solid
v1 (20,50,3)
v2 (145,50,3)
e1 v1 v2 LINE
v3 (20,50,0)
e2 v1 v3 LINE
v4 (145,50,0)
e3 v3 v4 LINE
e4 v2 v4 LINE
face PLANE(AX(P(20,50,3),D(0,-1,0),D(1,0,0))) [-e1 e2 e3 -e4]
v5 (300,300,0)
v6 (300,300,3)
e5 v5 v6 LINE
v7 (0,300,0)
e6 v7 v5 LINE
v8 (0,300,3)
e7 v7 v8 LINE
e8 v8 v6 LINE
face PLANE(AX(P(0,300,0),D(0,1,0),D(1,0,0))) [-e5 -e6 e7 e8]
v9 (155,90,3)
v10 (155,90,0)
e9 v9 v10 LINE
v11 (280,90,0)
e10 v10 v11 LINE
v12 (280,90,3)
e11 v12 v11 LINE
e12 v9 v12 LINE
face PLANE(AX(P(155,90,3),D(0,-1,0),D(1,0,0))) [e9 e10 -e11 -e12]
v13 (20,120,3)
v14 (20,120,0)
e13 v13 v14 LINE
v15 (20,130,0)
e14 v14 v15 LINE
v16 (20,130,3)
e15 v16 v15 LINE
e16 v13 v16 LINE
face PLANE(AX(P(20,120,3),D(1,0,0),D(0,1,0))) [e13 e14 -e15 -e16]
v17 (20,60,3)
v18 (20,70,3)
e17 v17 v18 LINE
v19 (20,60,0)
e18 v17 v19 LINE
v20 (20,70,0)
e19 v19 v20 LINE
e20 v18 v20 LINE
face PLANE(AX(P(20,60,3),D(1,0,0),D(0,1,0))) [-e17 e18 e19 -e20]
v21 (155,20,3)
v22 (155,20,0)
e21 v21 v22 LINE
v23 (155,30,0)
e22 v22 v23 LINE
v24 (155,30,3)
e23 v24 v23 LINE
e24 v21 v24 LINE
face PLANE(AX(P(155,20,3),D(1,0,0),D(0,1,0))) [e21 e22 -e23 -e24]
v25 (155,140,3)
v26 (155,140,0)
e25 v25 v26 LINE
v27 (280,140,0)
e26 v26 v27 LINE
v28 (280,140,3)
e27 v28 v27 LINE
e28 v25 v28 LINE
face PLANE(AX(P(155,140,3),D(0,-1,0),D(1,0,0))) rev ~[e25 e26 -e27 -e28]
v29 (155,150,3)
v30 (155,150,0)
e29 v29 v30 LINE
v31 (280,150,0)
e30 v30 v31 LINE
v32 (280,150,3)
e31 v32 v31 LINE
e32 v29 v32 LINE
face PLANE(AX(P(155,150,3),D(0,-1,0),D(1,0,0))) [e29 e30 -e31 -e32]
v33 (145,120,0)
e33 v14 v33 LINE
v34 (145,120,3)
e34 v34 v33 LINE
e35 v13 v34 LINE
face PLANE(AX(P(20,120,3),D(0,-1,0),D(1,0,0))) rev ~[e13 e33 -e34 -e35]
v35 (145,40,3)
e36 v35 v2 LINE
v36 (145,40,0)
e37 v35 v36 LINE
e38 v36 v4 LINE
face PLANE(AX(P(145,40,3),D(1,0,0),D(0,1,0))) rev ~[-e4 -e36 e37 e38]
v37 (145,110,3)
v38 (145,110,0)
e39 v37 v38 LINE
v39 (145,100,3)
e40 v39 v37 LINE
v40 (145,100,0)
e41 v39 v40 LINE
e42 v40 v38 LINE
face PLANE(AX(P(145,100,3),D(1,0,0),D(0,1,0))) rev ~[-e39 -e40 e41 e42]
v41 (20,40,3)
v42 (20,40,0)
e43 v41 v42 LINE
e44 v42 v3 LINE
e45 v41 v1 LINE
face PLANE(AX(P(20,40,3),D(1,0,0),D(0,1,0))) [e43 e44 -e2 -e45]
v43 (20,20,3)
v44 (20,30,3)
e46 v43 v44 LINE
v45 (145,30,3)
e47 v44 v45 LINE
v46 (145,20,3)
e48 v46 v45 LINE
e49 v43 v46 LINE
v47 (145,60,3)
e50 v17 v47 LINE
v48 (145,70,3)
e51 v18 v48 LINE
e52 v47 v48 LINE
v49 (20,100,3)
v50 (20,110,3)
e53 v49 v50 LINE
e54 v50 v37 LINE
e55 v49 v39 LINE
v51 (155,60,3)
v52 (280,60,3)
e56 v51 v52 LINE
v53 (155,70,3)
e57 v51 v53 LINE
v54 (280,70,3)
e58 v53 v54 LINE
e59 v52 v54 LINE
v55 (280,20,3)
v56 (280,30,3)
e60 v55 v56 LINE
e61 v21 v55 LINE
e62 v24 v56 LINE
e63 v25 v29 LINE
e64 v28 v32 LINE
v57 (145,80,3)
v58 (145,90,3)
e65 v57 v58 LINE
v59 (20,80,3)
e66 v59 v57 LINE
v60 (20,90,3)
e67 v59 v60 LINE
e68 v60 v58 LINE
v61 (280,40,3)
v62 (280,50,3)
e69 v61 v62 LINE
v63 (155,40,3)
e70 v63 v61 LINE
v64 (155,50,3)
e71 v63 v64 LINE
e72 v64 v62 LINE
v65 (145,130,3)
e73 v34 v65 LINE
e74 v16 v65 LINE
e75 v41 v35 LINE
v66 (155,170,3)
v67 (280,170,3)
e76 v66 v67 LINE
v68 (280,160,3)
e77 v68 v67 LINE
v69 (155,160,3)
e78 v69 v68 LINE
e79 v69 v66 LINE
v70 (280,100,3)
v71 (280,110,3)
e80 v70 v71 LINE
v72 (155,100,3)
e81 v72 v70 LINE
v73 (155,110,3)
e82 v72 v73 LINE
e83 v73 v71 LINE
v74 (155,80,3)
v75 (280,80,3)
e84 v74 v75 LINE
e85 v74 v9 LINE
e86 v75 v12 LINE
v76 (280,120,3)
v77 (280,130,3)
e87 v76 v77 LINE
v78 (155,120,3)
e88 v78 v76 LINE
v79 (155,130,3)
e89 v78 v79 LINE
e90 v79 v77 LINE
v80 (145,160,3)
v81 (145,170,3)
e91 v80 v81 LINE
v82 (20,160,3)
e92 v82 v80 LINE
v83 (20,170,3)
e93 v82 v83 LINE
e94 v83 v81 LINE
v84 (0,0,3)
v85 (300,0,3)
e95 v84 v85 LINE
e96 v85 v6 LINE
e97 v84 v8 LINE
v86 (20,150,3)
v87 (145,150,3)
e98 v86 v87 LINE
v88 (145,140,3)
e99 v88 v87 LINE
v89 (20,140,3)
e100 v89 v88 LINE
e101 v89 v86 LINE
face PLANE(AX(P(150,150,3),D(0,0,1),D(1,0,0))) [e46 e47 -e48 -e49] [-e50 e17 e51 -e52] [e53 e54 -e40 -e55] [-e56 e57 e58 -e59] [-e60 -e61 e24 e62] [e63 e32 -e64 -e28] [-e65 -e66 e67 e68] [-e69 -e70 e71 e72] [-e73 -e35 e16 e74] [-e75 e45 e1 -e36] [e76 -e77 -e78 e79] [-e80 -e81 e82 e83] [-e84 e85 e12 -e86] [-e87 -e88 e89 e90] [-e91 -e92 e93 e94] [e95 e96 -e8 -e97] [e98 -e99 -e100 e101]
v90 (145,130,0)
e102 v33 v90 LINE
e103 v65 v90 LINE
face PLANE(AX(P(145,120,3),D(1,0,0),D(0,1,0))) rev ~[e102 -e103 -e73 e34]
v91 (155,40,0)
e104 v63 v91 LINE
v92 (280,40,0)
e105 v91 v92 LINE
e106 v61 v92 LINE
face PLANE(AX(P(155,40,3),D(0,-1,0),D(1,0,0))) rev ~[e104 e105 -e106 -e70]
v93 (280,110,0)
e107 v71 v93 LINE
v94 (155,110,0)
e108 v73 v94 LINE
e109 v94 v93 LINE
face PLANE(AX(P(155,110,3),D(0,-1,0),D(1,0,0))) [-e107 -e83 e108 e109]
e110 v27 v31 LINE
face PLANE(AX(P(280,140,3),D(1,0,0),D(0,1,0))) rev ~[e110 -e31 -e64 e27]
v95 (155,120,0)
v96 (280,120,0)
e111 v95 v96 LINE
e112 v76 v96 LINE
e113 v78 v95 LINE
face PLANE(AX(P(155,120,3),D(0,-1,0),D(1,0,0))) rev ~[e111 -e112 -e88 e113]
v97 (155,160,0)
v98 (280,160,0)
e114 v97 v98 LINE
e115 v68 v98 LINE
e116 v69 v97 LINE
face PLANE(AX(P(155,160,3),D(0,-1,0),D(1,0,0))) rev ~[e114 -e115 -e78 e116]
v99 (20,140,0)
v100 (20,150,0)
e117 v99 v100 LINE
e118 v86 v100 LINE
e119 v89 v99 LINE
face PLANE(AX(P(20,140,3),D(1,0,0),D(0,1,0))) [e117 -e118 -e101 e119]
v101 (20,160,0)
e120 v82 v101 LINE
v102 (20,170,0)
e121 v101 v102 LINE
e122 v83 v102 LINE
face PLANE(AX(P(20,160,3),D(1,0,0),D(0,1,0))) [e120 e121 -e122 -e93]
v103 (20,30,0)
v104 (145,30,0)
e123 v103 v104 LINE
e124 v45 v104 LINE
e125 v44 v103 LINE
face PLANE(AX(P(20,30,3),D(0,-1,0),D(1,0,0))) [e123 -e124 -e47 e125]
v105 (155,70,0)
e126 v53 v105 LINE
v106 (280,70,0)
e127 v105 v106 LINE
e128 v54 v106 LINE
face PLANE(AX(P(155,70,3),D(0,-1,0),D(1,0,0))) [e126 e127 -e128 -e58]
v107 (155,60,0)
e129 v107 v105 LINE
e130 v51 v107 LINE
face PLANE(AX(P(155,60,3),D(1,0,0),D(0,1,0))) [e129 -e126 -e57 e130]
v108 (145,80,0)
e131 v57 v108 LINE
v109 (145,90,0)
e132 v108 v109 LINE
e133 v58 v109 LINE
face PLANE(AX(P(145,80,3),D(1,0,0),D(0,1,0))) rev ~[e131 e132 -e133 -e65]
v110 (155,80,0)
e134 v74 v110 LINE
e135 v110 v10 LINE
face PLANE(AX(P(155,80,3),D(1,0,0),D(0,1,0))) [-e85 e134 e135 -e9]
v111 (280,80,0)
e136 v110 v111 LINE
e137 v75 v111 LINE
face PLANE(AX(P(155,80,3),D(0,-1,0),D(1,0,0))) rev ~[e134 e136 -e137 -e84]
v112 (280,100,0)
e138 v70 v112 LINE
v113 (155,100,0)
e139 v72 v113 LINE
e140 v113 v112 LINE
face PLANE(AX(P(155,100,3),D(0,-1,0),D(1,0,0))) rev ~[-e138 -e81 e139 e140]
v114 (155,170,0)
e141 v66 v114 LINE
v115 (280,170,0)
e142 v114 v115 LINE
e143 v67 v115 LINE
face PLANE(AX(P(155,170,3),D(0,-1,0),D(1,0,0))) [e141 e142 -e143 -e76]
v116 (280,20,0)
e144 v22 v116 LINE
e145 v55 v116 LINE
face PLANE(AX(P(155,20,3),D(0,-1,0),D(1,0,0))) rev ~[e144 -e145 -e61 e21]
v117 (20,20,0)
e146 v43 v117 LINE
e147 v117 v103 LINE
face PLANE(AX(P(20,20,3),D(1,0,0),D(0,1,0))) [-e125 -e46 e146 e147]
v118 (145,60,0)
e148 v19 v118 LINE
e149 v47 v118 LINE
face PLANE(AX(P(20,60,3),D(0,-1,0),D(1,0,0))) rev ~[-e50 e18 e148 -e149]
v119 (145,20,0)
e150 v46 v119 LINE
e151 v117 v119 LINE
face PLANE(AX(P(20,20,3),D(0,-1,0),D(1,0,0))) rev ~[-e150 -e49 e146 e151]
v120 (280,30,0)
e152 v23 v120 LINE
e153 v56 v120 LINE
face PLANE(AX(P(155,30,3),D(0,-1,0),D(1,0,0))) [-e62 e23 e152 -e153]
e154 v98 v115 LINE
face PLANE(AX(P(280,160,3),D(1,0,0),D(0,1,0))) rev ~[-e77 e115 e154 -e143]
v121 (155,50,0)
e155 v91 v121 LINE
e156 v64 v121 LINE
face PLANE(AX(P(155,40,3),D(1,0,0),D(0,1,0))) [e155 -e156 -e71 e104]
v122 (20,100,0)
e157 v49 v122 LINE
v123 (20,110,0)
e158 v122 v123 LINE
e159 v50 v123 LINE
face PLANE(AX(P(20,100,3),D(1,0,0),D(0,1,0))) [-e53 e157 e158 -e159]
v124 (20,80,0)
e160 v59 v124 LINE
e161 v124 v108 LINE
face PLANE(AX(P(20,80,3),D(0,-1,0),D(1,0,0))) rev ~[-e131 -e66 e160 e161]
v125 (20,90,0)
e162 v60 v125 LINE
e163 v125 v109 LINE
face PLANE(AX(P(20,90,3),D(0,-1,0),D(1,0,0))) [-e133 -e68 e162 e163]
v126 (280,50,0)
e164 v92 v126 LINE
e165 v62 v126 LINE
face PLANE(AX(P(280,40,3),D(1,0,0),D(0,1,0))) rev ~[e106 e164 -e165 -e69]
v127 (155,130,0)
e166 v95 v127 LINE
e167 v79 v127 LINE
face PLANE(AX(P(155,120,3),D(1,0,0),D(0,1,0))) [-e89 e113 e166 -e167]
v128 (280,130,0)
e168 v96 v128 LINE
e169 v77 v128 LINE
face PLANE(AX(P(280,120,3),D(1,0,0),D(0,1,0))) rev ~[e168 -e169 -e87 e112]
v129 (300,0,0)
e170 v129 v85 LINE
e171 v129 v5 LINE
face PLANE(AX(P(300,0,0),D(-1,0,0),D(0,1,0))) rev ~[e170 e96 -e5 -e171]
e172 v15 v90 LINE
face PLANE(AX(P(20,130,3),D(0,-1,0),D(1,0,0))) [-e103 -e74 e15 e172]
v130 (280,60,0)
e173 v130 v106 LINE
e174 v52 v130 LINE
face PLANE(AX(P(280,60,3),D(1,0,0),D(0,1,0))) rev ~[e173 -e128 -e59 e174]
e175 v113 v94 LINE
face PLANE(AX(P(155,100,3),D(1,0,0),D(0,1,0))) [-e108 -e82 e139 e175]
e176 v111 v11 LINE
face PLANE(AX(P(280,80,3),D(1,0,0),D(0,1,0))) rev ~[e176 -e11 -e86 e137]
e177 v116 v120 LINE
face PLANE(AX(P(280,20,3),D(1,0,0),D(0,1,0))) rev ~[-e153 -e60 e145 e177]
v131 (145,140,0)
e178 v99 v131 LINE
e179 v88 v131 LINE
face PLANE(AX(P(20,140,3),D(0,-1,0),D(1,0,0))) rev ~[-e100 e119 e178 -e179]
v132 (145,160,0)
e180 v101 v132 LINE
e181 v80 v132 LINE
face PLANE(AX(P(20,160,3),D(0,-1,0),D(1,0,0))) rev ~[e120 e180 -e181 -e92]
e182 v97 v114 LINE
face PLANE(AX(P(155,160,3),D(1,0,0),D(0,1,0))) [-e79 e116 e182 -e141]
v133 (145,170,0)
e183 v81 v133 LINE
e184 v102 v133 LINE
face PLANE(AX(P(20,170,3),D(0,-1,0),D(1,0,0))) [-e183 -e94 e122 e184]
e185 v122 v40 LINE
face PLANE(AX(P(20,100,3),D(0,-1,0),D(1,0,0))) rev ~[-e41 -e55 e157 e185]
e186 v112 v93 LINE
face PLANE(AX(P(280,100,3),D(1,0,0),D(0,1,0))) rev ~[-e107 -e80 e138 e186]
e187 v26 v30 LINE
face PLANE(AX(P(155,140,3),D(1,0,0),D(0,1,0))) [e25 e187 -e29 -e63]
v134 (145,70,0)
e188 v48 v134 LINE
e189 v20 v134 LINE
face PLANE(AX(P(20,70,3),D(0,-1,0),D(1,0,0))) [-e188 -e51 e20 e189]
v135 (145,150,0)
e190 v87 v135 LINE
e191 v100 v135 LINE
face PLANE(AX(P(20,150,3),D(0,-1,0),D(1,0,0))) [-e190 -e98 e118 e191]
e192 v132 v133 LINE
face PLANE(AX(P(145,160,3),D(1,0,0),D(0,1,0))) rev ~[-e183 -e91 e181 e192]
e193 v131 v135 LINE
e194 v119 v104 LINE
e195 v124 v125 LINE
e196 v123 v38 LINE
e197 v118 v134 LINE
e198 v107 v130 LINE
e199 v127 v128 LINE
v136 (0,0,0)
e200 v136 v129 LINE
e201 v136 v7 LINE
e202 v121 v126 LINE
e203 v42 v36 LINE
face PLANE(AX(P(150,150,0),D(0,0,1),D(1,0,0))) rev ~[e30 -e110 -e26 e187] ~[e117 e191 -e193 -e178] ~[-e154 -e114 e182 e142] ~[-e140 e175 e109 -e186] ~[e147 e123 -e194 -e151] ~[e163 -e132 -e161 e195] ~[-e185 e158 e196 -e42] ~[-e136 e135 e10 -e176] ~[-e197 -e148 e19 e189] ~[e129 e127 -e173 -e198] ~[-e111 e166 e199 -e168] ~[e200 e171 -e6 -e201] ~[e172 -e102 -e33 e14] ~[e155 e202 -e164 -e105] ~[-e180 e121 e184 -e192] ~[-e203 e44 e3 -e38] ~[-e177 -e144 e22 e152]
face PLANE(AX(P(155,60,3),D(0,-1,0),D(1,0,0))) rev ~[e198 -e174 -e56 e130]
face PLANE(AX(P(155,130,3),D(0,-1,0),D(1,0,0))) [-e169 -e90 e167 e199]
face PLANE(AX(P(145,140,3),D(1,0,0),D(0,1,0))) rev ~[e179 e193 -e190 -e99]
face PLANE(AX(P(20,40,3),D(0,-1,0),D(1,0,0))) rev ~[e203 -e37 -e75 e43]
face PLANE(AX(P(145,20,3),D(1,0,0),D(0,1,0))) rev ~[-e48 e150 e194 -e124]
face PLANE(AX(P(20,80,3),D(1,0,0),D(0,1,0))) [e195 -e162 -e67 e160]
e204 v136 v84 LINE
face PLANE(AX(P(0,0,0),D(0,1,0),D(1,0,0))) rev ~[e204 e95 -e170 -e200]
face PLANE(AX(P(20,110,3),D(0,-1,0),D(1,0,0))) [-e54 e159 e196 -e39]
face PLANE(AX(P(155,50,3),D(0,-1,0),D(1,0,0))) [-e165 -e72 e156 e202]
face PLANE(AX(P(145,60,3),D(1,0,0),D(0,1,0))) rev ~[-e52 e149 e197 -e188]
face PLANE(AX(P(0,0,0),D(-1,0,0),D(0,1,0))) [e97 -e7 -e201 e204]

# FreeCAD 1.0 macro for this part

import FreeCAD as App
import Part
import Sketcher
from FreeCAD import Vector
Q = App.Units.Quantity


def add_polygon(sketch, points):
    """Adds a closed chain of lines whose ends are joined by coincident constraints."""
    first, n = sketch.GeometryCount, len(points)
    for a, b in zip(points, points[1:] + points[:1]):
        sketch.addGeometry(Part.LineSegment(App.Vector(*a, 0), App.Vector(*b, 0)), False)
    for i in range(n):
        sketch.addConstraint(Sketcher.Constraint("Coincident", first + i, 2, first + (i + 1) % n, 1))

doc = App.newDocument("Part")
params = doc.addObject("Spreadsheet::Sheet", "Params")
for row, (alias, value) in enumerate([
    ("sketch1_width", "300 mm"),
    ("pad1_length", "3 mm"),
    ("sketch2_width", "125 mm"),
    ("sketch2_height", "10 mm"),
    ("pocket1_length", "10 mm"),
], start=1):
    params.set(f"A{row}", alias)
    params.set(f"B{row}", "=" + value)
    params.setAlias(f"B{row}", alias)

body = doc.addObject("PartDesign::Body", "Body")

# Sketch on XY plane
sketch1 = doc.addObject("Sketcher::SketchObject", "Sketch")
body.addObject(sketch1)
sketch1.AttachmentSupport = (doc.XY_Plane, [""])
sketch1.MapMode = "FlatFace"
add_polygon(sketch1, [(0, 300), (0, 0), (300, 0), (300, 300)])  # lines 0-3
sketch1.addConstraint([
    Sketcher.Constraint("Vertical", 0),
    Sketcher.Constraint("Horizontal", 1),
    Sketcher.Constraint("Vertical", 2),
    Sketcher.Constraint("Horizontal", 3),
    Sketcher.Constraint("Coincident", 0, 2, -1, 1),
    Sketcher.Constraint("Equal", 3, 0),
    Sketcher.Constraint("DistanceX", 1, 1, 1, 2, Q("300 mm")),
])
sketch1.setExpression("Constraints[10]", "Params.sketch1_width")
pad1 = doc.addObject("PartDesign::Pad", "Pad")
body.addObject(pad1)
pad1.Profile = sketch1
pad1.setExpression("Length", "Params.pad1_length")

# Sketch on XY plane
sketch2 = doc.addObject("Sketcher::SketchObject", "Sketch001")
body.addObject(sketch2)
sketch2.AttachmentSupport = (doc.XY_Plane, [""])
sketch2.MapMode = "FlatFace"
sketch2.AttachmentOffset = App.Placement(Vector(0, 0, 3), App.Rotation())
add_polygon(sketch2, [(20, 30), (20, 20), (145, 20), (145, 30)])  # lines 0-3
add_polygon(sketch2, [(20, 170), (20, 160), (145, 160), (145, 170)])  # lines 4-7
add_polygon(sketch2, [(20, 150), (20, 140), (145, 140), (145, 150)])  # lines 8-11
add_polygon(sketch2, [(20, 130), (20, 120), (145, 120), (145, 130)])  # lines 12-15
add_polygon(sketch2, [(20, 110), (20, 100), (145, 100), (145, 110)])  # lines 16-19
add_polygon(sketch2, [(20, 90), (20, 80), (145, 80), (145, 90)])  # lines 20-23
add_polygon(sketch2, [(20, 70), (20, 60), (145, 60), (145, 70)])  # lines 24-27
add_polygon(sketch2, [(20, 50), (20, 40), (145, 40), (145, 50)])  # lines 28-31
add_polygon(sketch2, [(155, 30), (155, 20), (280, 20), (280, 30)])  # lines 32-35
add_polygon(sketch2, [(155, 50), (155, 40), (280, 40), (280, 50)])  # lines 36-39
add_polygon(sketch2, [(155, 70), (155, 60), (280, 60), (280, 70)])  # lines 40-43
add_polygon(sketch2, [(155, 90), (155, 80), (280, 80), (280, 90)])  # lines 44-47
add_polygon(sketch2, [(155, 110), (155, 100), (280, 100), (280, 110)])  # lines 48-51
add_polygon(sketch2, [(155, 130), (155, 120), (280, 120), (280, 130)])  # lines 52-55
add_polygon(sketch2, [(155, 150), (155, 140), (280, 140), (280, 150)])  # lines 56-59
add_polygon(sketch2, [(155, 170), (155, 160), (280, 160), (280, 170)])  # lines 60-63
sketch2.addConstraint([
    Sketcher.Constraint("Vertical", 0),
    Sketcher.Constraint("Horizontal", 1),
    Sketcher.Constraint("Vertical", 2),
    Sketcher.Constraint("Horizontal", 3),
    Sketcher.Constraint("Vertical", 4),
    Sketcher.Constraint("Horizontal", 5),
    Sketcher.Constraint("Vertical", 6),
    Sketcher.Constraint("Horizontal", 7),
    Sketcher.Constraint("Vertical", 8),
    Sketcher.Constraint("Horizontal", 9),
    Sketcher.Constraint("Vertical", 10),
    Sketcher.Constraint("Horizontal", 11),
    Sketcher.Constraint("Vertical", 12),
    Sketcher.Constraint("Horizontal", 13),
    Sketcher.Constraint("Vertical", 14),
    Sketcher.Constraint("Horizontal", 15),
    Sketcher.Constraint("Vertical", 16),
    Sketcher.Constraint("Horizontal", 17),
    Sketcher.Constraint("Vertical", 18),
    Sketcher.Constraint("Horizontal", 19),
    Sketcher.Constraint("Vertical", 20),
    Sketcher.Constraint("Horizontal", 21),
    Sketcher.Constraint("Vertical", 22),
    Sketcher.Constraint("Horizontal", 23),
    Sketcher.Constraint("Vertical", 24),
    Sketcher.Constraint("Horizontal", 25),
    Sketcher.Constraint("Vertical", 26),
    Sketcher.Constraint("Horizontal", 27),
    Sketcher.Constraint("Vertical", 28),
    Sketcher.Constraint("Horizontal", 29),
    Sketcher.Constraint("Vertical", 30),
    Sketcher.Constraint("Horizontal", 31),
    Sketcher.Constraint("Vertical", 32),
    Sketcher.Constraint("Horizontal", 33),
    Sketcher.Constraint("Vertical", 34),
    Sketcher.Constraint("Horizontal", 35),
    Sketcher.Constraint("Vertical", 36),
    Sketcher.Constraint("Horizontal", 37),
    Sketcher.Constraint("Vertical", 38),
    Sketcher.Constraint("Horizontal", 39),
    Sketcher.Constraint("Vertical", 40),
    Sketcher.Constraint("Horizontal", 41),
    Sketcher.Constraint("Vertical", 42),
    Sketcher.Constraint("Horizontal", 43),
    Sketcher.Constraint("Vertical", 44),
    Sketcher.Constraint("Horizontal", 45),
    Sketcher.Constraint("Vertical", 46),
    Sketcher.Constraint("Horizontal", 47),
    Sketcher.Constraint("Vertical", 48),
    Sketcher.Constraint("Horizontal", 49),
    Sketcher.Constraint("Vertical", 50),
    Sketcher.Constraint("Horizontal", 51),
    Sketcher.Constraint("Vertical", 52),
    Sketcher.Constraint("Horizontal", 53),
    Sketcher.Constraint("Vertical", 54),
    Sketcher.Constraint("Horizontal", 55),
    Sketcher.Constraint("Vertical", 56),
    Sketcher.Constraint("Horizontal", 57),
    Sketcher.Constraint("Vertical", 58),
    Sketcher.Constraint("Horizontal", 59),
    Sketcher.Constraint("Vertical", 60),
    Sketcher.Constraint("Horizontal", 61),
    Sketcher.Constraint("Vertical", 62),
    Sketcher.Constraint("Horizontal", 63),
    Sketcher.Constraint("Horizontal", 1, 2, 32, 2),
    Sketcher.Constraint("Horizontal", 3, 2, 34, 2),
    Sketcher.Constraint("Horizontal", 29, 2, 36, 2),
    Sketcher.Constraint("Horizontal", 31, 2, 38, 2),
    Sketcher.Constraint("Horizontal", 25, 2, 40, 2),
    Sketcher.Constraint("Horizontal", 27, 2, 42, 2),
    Sketcher.Constraint("Horizontal", 21, 2, 44, 2),
    Sketcher.Constraint("Horizontal", 23, 2, 46, 2),
    Sketcher.Constraint("Horizontal", 17, 2, 48, 2),
    Sketcher.Constraint("Horizontal", 19, 2, 50, 2),
    Sketcher.Constraint("Horizontal", 13, 2, 52, 2),
    Sketcher.Constraint("Horizontal", 15, 2, 54, 2),
    Sketcher.Constraint("Horizontal", 9, 2, 56, 2),
    Sketcher.Constraint("Horizontal", 11, 2, 58, 2),
    Sketcher.Constraint("Horizontal", 5, 2, 60, 2),
    Sketcher.Constraint("Horizontal", 7, 2, 62, 2),
    Sketcher.Constraint("Vertical", 3, 2, 4, 2),
    Sketcher.Constraint("Vertical", 2, 2, 5, 2),
    Sketcher.Constraint("Vertical", 7, 2, 8, 2),
    Sketcher.Constraint("Vertical", 6, 2, 9, 2),
    Sketcher.Constraint("Vertical", 11, 2, 12, 2),
    Sketcher.Constraint("Vertical", 10, 2, 13, 2),
    Sketcher.Constraint("Vertical", 15, 2, 16, 2),
    Sketcher.Constraint("Vertical", 14, 2, 17, 2),
    Sketcher.Constraint("Vertical", 19, 2, 20, 2),
    Sketcher.Constraint("Vertical", 18, 2, 21, 2),
    Sketcher.Constraint("Vertical", 23, 2, 24, 2),
    Sketcher.Constraint("Vertical", 22, 2, 25, 2),
    Sketcher.Constraint("Vertical", 27, 2, 28, 2),
    Sketcher.Constraint("Vertical", 26, 2, 29, 2),
    Sketcher.Constraint("Vertical", 35, 2, 36, 2),
    Sketcher.Constraint("Vertical", 34, 2, 37, 2),
    Sketcher.Constraint("Vertical", 39, 2, 40, 2),
    Sketcher.Constraint("Vertical", 38, 2, 41, 2),
    Sketcher.Constraint("Vertical", 43, 2, 44, 2),
    Sketcher.Constraint("Vertical", 42, 2, 45, 2),
    Sketcher.Constraint("Vertical", 47, 2, 48, 2),
    Sketcher.Constraint("Vertical", 46, 2, 49, 2),
    Sketcher.Constraint("Vertical", 51, 2, 52, 2),
    Sketcher.Constraint("Vertical", 50, 2, 53, 2),
    Sketcher.Constraint("Vertical", 55, 2, 56, 2),
    Sketcher.Constraint("Vertical", 54, 2, 57, 2),
    Sketcher.Constraint("Vertical", 59, 2, 60, 2),
    Sketcher.Constraint("Vertical", 58, 2, 61, 2),
    Sketcher.Constraint("Equal", 31, 33),
    Sketcher.Constraint("Equal", 2, 4),
    Sketcher.Constraint("Equal", 6, 8),
    Sketcher.Constraint("Equal", 10, 12),
    Sketcher.Constraint("Equal", 14, 16),
    Sketcher.Constraint("Equal", 18, 20),
    Sketcher.Constraint("Equal", 22, 24),
    Sketcher.Constraint("Equal", 26, 28),
    Sketcher.Constraint("DistanceX", 1, 1, 1, 2, Q("125 mm")),
    Sketcher.Constraint("DistanceY", 0, 2, 0, 1, Q("10 mm")),
    Sketcher.Constraint("DistanceX", -1, 1, 0, 2, Q("20 mm")),
    Sketcher.Constraint("DistanceY", -1, 1, 0, 2, Q("20 mm")),
    Sketcher.Constraint("DistanceY", -1, 1, 4, 2, Q("160 mm")),
    Sketcher.Constraint("DistanceY", -1, 1, 8, 2, Q("140 mm")),
    Sketcher.Constraint("DistanceY", -1, 1, 12, 2, Q("120 mm")),
    Sketcher.Constraint("DistanceY", -1, 1, 16, 2, Q("100 mm")),
    Sketcher.Constraint("DistanceY", -1, 1, 20, 2, Q("80 mm")),
    Sketcher.Constraint("DistanceY", -1, 1, 24, 2, Q("60 mm")),
    Sketcher.Constraint("DistanceY", -1, 1, 28, 2, Q("40 mm")),
    Sketcher.Constraint("DistanceX", -1, 1, 32, 2, Q("155 mm")),
])
sketch2.setExpression("Constraints[180]", "Params.sketch2_width")
sketch2.setExpression("Constraints[181]", "Params.sketch2_height")
pocket1 = doc.addObject("PartDesign::Pocket", "Pocket")
body.addObject(pocket1)
pocket1.Profile = sketch2
pocket1.setExpression("Length", "Params.pocket1_length")

doc.recompute()
